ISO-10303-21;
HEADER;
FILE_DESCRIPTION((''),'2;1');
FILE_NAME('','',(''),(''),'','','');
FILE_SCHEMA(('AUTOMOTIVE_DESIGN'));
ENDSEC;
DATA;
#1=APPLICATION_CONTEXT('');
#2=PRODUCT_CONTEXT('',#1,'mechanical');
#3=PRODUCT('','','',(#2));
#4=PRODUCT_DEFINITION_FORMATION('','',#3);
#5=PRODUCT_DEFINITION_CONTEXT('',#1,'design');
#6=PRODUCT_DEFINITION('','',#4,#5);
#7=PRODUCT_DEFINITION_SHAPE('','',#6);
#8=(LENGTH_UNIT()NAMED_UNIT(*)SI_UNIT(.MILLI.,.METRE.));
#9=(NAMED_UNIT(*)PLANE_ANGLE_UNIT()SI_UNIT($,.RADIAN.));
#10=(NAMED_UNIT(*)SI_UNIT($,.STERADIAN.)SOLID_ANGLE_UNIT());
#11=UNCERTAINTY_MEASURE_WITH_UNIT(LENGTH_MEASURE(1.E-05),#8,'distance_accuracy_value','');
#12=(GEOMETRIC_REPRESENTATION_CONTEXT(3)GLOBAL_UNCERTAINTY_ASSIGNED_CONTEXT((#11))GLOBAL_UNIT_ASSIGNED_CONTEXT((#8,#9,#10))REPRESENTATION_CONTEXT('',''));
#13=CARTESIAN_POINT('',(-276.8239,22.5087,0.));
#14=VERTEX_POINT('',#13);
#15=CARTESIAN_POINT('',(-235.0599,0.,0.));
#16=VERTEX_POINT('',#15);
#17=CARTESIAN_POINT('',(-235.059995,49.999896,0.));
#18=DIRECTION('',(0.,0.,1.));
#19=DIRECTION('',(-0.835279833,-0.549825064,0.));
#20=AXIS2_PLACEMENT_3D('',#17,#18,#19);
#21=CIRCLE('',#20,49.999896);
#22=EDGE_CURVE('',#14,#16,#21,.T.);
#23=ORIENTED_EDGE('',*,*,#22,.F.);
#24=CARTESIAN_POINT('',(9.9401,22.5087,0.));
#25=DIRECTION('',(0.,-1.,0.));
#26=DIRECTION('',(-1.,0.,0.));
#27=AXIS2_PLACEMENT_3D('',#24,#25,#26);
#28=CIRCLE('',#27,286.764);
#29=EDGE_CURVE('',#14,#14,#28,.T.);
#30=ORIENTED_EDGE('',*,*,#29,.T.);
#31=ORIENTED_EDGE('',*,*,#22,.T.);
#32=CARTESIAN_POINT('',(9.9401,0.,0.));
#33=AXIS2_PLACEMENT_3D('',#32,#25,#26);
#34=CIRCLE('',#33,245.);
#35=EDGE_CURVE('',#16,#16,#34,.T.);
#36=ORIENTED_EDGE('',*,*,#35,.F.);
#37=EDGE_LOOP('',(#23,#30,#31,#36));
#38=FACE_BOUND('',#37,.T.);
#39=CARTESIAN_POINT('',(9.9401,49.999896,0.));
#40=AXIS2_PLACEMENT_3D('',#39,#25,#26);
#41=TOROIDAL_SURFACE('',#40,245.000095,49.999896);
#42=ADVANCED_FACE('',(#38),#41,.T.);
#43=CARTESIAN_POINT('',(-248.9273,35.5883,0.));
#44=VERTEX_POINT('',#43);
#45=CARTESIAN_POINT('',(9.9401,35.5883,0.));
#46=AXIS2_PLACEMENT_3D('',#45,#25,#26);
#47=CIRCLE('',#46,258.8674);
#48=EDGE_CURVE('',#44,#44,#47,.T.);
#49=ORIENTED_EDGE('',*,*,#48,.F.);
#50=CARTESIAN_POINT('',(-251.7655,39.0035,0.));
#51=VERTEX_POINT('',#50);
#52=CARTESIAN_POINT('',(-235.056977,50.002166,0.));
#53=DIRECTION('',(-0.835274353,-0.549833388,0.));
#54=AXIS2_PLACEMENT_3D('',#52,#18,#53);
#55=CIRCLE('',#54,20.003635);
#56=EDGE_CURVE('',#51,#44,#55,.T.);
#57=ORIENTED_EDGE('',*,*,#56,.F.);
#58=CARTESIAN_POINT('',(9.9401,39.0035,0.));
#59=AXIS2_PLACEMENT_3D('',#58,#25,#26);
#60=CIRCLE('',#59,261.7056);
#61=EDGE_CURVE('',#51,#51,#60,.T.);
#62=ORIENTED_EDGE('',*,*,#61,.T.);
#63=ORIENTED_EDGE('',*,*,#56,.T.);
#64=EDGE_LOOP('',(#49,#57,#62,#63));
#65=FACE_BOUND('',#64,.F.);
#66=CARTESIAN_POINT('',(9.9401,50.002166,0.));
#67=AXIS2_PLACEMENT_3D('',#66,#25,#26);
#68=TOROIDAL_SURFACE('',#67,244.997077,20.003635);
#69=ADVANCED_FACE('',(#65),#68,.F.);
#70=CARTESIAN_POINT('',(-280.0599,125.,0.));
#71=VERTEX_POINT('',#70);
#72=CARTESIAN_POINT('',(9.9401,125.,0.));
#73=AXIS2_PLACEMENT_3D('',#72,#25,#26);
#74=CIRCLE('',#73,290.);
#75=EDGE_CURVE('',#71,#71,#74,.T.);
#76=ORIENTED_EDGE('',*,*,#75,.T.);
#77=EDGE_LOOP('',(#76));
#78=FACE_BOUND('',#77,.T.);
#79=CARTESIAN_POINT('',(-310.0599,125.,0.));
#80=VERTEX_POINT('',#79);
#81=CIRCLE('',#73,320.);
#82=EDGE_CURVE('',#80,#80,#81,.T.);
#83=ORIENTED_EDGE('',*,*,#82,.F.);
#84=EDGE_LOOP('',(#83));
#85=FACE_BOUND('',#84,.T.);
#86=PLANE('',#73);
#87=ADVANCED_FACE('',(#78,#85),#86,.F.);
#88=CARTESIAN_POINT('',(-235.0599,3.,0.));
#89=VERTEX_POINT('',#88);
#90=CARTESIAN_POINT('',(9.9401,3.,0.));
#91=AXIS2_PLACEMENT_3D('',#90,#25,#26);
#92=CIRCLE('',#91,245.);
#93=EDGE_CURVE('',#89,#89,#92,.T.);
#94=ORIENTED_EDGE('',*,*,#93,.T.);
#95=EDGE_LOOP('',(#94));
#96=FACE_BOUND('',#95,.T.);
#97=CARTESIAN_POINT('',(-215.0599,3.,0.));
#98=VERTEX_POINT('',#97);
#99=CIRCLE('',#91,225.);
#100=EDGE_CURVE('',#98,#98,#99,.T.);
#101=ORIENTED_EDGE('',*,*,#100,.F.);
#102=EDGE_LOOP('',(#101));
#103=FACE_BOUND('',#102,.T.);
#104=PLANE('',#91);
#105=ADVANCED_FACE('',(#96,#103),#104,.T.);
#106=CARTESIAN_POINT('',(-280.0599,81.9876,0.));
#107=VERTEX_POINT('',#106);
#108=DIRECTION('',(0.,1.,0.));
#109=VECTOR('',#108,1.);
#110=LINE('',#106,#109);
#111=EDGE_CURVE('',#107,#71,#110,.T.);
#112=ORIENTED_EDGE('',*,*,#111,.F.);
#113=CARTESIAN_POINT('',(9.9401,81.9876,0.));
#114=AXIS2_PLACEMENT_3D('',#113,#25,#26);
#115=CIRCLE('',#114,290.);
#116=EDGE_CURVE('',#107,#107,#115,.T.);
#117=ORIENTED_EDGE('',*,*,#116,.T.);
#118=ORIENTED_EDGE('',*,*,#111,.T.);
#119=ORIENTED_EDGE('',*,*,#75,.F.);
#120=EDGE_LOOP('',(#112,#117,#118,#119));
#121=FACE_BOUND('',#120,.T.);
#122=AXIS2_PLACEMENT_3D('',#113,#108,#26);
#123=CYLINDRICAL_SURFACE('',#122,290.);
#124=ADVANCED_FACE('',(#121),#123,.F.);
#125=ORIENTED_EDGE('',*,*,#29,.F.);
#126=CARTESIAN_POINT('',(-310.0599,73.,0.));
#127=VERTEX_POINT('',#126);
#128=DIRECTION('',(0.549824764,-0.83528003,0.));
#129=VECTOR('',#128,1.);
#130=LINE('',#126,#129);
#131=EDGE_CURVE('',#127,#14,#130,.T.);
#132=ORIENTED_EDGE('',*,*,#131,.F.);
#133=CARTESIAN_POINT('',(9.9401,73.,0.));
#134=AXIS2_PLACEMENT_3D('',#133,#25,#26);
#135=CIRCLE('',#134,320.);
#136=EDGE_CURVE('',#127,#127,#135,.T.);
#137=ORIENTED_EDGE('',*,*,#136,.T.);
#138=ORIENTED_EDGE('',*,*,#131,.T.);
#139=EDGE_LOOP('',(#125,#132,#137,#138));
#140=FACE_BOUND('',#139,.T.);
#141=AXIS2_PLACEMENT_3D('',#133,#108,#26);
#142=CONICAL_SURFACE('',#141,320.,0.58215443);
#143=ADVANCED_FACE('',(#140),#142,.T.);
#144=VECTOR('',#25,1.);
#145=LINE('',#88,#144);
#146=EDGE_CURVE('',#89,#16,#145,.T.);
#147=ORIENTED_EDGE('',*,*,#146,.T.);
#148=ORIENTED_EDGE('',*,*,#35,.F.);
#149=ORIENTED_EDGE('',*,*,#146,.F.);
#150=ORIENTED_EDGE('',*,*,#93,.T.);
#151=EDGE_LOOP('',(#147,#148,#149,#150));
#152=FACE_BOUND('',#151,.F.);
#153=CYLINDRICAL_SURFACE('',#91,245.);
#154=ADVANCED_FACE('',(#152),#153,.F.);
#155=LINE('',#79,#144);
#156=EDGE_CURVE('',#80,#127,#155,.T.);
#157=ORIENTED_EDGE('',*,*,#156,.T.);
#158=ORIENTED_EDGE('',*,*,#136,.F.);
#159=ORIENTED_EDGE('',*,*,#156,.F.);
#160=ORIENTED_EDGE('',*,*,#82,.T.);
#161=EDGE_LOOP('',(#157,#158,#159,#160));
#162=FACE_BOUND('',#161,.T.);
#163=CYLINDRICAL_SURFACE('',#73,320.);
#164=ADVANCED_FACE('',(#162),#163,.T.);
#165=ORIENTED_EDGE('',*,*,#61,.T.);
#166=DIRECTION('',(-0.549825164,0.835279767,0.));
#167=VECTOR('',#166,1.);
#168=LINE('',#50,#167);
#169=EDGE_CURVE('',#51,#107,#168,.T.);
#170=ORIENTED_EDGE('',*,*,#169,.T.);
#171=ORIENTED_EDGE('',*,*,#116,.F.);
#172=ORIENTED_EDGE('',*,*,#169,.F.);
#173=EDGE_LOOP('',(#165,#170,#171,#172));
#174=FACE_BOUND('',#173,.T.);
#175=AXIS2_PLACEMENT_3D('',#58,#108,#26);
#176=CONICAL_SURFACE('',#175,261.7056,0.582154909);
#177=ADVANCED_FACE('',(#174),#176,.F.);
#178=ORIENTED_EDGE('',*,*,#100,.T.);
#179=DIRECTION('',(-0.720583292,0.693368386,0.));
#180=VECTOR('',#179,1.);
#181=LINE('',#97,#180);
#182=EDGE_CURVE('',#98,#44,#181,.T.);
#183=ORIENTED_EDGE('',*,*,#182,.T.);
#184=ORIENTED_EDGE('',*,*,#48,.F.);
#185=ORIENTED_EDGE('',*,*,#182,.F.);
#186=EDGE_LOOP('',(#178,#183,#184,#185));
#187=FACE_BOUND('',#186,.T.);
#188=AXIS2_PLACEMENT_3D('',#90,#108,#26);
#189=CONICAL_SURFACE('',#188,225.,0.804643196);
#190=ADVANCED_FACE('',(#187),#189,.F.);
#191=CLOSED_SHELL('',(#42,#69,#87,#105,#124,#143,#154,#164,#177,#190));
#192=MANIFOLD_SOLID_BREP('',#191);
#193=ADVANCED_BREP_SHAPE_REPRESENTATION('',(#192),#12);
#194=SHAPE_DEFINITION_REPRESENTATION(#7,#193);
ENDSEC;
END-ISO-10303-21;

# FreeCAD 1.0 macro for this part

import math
import FreeCAD as App
import Part
import Sketcher
from FreeCAD import Vector

doc = App.newDocument("Part")
body = doc.addObject("PartDesign::Body", "Body")

sketch1 = body.newObject("Sketcher::SketchObject", "Sketch")
sketch1.AttachmentSupport = (doc.getObject("XY_Plane"), [""])
sketch1.MapMode = "FlatFace"
sketch1.addGeometry(Part.LineSegment(Vector(-235.1, 0, 0), Vector(-235.1, 3, 0)), False)
sketch1.addGeometry(Part.LineSegment(Vector(-235.1, 3, 0), Vector(-215.1, 3, 0)), False)
sketch1.addGeometry(Part.LineSegment(Vector(-215.1, 3, 0), Vector(-248.9, 35.6, 0)), False)
sketch1.addGeometry(Part.ArcOfCircle(Part.Circle(Vector(-235.1, 50, 0), Vector(0, 0, 1), 20), math.radians(-146.64), math.radians(-133.9)), False)
sketch1.addGeometry(Part.LineSegment(Vector(-251.8, 39, 0), Vector(-280.1, 82, 0)), False)
sketch1.addGeometry(Part.LineSegment(Vector(-280.1, 82, 0), Vector(-280.1, 125, 0)), False)
sketch1.addGeometry(Part.LineSegment(Vector(-280.1, 125, 0), Vector(-310.1, 125, 0)), False)
sketch1.addGeometry(Part.LineSegment(Vector(-310.1, 125, 0), Vector(-310.1, 73, 0)), False)
sketch1.addGeometry(Part.LineSegment(Vector(-310.1, 73, 0), Vector(-276.8, 22.5, 0)), False)
sketch1.addGeometry(Part.ArcOfCircle(Part.Circle(Vector(-235.1, 50, 0), Vector(0, 0, 1), 50), math.radians(-147), math.radians(-90)), False)
sketch1.addGeometry(Part.LineSegment(Vector(9.9, 125, 0), Vector(9.9, 0, 0)), True)
sketch1.addConstraint(Sketcher.Constraint("Coincident", 0, 2, 1, 1))
sketch1.addConstraint(Sketcher.Constraint("Coincident", 1, 2, 2, 1))
sketch1.addConstraint(Sketcher.Constraint("Tangent", 2, 2, 3, 2))
sketch1.addConstraint(Sketcher.Constraint("Tangent", 3, 1, 4, 1))
sketch1.addConstraint(Sketcher.Constraint("Coincident", 4, 2, 5, 1))
sketch1.addConstraint(Sketcher.Constraint("Coincident", 5, 2, 6, 1))
sketch1.addConstraint(Sketcher.Constraint("Coincident", 6, 2, 7, 1))
sketch1.addConstraint(Sketcher.Constraint("Coincident", 7, 2, 8, 1))
sketch1.addConstraint(Sketcher.Constraint("Tangent", 8, 2, 9, 1))
sketch1.addConstraint(Sketcher.Constraint("Coincident", 9, 2, 0, 1))
sketch1.addConstraint(Sketcher.Constraint("Vertical", 0))
sketch1.addConstraint(Sketcher.Constraint("Horizontal", 1))
sketch1.addConstraint(Sketcher.Constraint("Vertical", 5))
sketch1.addConstraint(Sketcher.Constraint("Horizontal", 6))
sketch1.addConstraint(Sketcher.Constraint("Vertical", 7))
sketch1.addConstraint(Sketcher.Constraint("Vertical", 10))
sketch1.addConstraint(Sketcher.Constraint("PointOnObject", 9, 2, -1))
sketch1.addConstraint(Sketcher.Constraint("PointOnObject", 10, 2, -1))
sketch1.addConstraint(Sketcher.Constraint("Parallel", 4, 8))
sketch1.addConstraint(Sketcher.Constraint("Horizontal", 6, 2, 10, 1))
sketch1.addConstraint(Sketcher.Constraint("Vertical", 9, 3, 0, 2))
sketch1.addConstraint(Sketcher.Constraint("Radius", 9, 50.0))
sketch1.addConstraint(Sketcher.Constraint("DistanceX", 1, 1, 1, 2, 20.0))
sketch1.addConstraint(Sketcher.Constraint("DistanceX", 6, 2, 6, 1, 30.0))
sketch1.addConstraint(Sketcher.Constraint("DistanceY", 0, 1, 0, 2, 3.0))
sketch1.addConstraint(Sketcher.Constraint("DistanceY", 10, 2, 10, 1, 125.0))
sketch1.addConstraint(Sketcher.Constraint("DistanceX", 9, 3, 10, 1, 245.0))
sketch1.addConstraint(Sketcher.Constraint("DistanceY", 7, 2, 7, 1, 52.0))
sketch1.addConstraint(Sketcher.Constraint("Distance", 2, 47.0))
sketch1.addConstraint(Sketcher.Constraint("DistanceX", 4, 2, 9, 3, 45.0))
sketch1.addConstraint(Sketcher.Constraint("Radius", 3, 20.0036))
sketch1.addConstraint(Sketcher.Constraint("DistanceX", 9, 3, -1, 1, 235.06))
sketch1.addConstraint(Sketcher.Constraint("DistanceY", 5, 1, 5, 2, 43.0124))
revolution = body.newObject("PartDesign::Revolution", "Revolution")
revolution.Profile = sketch1
revolution.ReferenceAxis = (sketch1, ["Axis0"])
revolution.Angle = 360

doc.recompute()
